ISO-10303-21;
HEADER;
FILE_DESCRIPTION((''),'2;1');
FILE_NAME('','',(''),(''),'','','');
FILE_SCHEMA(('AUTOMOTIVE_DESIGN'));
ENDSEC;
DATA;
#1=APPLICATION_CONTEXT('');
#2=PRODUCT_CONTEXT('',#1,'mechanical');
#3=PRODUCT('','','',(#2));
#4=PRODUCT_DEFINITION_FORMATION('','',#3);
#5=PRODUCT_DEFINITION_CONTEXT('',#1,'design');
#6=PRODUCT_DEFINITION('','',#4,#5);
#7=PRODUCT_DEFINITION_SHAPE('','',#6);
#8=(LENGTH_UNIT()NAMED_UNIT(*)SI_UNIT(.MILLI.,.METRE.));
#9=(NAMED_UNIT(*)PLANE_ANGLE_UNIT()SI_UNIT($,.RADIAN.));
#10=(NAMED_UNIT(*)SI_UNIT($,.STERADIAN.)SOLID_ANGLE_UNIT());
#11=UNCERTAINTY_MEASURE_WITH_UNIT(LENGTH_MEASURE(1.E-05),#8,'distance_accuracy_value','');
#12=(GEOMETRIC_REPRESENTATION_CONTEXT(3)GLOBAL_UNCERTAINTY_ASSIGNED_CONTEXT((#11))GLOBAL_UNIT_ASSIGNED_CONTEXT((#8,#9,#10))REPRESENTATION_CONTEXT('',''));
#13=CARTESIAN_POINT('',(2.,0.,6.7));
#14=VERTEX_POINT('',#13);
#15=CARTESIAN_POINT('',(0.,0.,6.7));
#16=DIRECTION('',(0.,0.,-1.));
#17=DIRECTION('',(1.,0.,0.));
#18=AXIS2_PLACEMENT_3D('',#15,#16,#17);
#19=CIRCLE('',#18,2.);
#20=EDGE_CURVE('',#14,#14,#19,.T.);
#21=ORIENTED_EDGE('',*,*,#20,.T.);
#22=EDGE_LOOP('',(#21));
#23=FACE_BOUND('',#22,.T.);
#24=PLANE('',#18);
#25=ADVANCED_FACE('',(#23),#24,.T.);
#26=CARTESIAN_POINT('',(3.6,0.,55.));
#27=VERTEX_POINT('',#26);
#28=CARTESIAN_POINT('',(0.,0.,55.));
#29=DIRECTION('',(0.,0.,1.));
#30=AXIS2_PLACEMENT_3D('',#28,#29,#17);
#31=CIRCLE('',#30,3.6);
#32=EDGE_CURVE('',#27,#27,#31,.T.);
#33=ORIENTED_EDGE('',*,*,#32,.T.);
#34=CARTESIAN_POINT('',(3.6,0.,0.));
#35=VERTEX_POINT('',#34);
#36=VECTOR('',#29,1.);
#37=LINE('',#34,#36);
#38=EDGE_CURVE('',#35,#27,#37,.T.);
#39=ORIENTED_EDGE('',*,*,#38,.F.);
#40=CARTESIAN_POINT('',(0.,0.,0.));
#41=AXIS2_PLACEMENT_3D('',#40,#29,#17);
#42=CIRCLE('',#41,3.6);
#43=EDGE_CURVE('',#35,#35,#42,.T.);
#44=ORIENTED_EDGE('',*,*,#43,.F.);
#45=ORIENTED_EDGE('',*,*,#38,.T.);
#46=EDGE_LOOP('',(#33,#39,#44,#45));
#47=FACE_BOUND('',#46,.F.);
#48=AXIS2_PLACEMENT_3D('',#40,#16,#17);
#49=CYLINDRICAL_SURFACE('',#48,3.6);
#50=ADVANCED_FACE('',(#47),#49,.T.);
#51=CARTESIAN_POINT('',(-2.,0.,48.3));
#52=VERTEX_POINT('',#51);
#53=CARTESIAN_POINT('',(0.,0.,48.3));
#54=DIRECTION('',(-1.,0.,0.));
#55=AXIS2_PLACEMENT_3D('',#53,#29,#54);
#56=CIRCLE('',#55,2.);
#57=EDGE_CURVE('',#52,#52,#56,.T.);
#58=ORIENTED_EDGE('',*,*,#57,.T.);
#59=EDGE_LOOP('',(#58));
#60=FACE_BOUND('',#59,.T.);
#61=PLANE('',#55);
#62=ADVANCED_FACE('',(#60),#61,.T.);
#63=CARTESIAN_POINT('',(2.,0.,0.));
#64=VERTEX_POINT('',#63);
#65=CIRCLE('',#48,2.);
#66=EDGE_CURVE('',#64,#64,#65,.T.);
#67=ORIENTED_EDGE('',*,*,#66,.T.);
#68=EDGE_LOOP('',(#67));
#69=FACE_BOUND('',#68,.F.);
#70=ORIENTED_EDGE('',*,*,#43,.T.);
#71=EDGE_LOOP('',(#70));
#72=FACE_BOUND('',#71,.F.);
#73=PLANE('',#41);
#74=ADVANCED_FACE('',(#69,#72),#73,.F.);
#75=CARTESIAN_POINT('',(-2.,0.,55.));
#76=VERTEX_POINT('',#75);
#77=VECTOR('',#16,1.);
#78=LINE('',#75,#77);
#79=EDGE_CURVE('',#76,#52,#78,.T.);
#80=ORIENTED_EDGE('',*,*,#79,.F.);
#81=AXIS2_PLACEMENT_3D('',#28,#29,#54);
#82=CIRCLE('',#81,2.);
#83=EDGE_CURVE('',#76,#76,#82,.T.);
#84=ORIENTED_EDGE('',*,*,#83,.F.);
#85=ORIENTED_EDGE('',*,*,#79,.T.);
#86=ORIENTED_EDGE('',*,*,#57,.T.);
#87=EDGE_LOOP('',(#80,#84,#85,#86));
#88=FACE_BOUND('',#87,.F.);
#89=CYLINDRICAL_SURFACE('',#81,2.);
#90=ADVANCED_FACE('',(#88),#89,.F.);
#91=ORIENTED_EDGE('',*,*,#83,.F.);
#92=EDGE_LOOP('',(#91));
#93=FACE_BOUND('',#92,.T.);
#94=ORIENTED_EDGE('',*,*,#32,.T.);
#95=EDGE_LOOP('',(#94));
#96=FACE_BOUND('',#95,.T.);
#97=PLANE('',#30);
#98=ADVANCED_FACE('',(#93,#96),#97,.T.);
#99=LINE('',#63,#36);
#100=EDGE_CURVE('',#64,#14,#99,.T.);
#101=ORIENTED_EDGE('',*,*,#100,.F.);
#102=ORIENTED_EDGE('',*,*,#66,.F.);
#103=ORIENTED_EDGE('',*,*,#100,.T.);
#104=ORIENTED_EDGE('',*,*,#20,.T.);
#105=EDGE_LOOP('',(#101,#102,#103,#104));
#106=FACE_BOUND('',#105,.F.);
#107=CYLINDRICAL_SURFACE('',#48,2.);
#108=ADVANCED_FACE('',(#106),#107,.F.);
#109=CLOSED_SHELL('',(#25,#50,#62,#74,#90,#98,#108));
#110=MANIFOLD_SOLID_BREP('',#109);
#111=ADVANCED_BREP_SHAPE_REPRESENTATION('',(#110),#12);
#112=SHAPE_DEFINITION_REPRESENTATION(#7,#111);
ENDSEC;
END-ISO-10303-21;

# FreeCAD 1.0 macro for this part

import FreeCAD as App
import Part
import Sketcher

doc = App.newDocument("Part")
body = doc.addObject("PartDesign::Body", "Body")

# Sketch on XY plane
sketch1 = body.newObject("Sketcher::SketchObject", "Sketch")
sketch1.AttachmentSupport = (doc.getObject("XY_Plane"), [""])
sketch1.MapMode = "FlatFace"
sketch1.addGeometry(Part.Circle(App.Vector(0, 0, 0), App.Vector(0, 0, 1), 3.6), False)
sketch1.addConstraint(Sketcher.Constraint("Coincident", 0, 3, -1, 1))
sketch1.addConstraint(Sketcher.Constraint("Diameter", 0, 7.2))
pad1 = body.newObject("PartDesign::Pad", "Pad")
pad1.Profile = sketch1
pad1.Length = 55

# Sketch on XY plane
sketch2 = body.newObject("Sketcher::SketchObject", "Sketch001")
sketch2.AttachmentSupport = (doc.getObject("XY_Plane"), [""])
sketch2.MapMode = "FlatFace"
sketch2.AttachmentOffset = App.Placement(App.Vector(0, 0, 55), App.Rotation())
sketch2.addGeometry(Part.Circle(App.Vector(0, 0, 0), App.Vector(0, 0, 1), 2), False)
sketch2.addConstraint(Sketcher.Constraint("Coincident", 0, 3, -1, 1))
sketch2.addConstraint(Sketcher.Constraint("Diameter", 0, 4.0))
pocket1 = body.newObject("PartDesign::Pocket", "Pocket")
pocket1.Profile = sketch2
pocket1.Length = 6.7

# Sketch on XY plane
sketch3 = body.newObject("Sketcher::SketchObject", "Sketch002")
sketch3.AttachmentSupport = (doc.getObject("XY_Plane"), [""])
sketch3.MapMode = "FlatFace"
sketch3.addGeometry(Part.Circle(App.Vector(0, 0, 0), App.Vector(0, 0, 1), 2), False)
sketch3.addConstraint(Sketcher.Constraint("Coincident", 0, 3, -1, 1))
sketch3.addConstraint(Sketcher.Constraint("Diameter", 0, 4.0))
pocket2 = body.newObject("PartDesign::Pocket", "Pocket001")
pocket2.Profile = sketch3
pocket2.Length = 6.7
pocket2.Reversed = True

doc.recompute()
